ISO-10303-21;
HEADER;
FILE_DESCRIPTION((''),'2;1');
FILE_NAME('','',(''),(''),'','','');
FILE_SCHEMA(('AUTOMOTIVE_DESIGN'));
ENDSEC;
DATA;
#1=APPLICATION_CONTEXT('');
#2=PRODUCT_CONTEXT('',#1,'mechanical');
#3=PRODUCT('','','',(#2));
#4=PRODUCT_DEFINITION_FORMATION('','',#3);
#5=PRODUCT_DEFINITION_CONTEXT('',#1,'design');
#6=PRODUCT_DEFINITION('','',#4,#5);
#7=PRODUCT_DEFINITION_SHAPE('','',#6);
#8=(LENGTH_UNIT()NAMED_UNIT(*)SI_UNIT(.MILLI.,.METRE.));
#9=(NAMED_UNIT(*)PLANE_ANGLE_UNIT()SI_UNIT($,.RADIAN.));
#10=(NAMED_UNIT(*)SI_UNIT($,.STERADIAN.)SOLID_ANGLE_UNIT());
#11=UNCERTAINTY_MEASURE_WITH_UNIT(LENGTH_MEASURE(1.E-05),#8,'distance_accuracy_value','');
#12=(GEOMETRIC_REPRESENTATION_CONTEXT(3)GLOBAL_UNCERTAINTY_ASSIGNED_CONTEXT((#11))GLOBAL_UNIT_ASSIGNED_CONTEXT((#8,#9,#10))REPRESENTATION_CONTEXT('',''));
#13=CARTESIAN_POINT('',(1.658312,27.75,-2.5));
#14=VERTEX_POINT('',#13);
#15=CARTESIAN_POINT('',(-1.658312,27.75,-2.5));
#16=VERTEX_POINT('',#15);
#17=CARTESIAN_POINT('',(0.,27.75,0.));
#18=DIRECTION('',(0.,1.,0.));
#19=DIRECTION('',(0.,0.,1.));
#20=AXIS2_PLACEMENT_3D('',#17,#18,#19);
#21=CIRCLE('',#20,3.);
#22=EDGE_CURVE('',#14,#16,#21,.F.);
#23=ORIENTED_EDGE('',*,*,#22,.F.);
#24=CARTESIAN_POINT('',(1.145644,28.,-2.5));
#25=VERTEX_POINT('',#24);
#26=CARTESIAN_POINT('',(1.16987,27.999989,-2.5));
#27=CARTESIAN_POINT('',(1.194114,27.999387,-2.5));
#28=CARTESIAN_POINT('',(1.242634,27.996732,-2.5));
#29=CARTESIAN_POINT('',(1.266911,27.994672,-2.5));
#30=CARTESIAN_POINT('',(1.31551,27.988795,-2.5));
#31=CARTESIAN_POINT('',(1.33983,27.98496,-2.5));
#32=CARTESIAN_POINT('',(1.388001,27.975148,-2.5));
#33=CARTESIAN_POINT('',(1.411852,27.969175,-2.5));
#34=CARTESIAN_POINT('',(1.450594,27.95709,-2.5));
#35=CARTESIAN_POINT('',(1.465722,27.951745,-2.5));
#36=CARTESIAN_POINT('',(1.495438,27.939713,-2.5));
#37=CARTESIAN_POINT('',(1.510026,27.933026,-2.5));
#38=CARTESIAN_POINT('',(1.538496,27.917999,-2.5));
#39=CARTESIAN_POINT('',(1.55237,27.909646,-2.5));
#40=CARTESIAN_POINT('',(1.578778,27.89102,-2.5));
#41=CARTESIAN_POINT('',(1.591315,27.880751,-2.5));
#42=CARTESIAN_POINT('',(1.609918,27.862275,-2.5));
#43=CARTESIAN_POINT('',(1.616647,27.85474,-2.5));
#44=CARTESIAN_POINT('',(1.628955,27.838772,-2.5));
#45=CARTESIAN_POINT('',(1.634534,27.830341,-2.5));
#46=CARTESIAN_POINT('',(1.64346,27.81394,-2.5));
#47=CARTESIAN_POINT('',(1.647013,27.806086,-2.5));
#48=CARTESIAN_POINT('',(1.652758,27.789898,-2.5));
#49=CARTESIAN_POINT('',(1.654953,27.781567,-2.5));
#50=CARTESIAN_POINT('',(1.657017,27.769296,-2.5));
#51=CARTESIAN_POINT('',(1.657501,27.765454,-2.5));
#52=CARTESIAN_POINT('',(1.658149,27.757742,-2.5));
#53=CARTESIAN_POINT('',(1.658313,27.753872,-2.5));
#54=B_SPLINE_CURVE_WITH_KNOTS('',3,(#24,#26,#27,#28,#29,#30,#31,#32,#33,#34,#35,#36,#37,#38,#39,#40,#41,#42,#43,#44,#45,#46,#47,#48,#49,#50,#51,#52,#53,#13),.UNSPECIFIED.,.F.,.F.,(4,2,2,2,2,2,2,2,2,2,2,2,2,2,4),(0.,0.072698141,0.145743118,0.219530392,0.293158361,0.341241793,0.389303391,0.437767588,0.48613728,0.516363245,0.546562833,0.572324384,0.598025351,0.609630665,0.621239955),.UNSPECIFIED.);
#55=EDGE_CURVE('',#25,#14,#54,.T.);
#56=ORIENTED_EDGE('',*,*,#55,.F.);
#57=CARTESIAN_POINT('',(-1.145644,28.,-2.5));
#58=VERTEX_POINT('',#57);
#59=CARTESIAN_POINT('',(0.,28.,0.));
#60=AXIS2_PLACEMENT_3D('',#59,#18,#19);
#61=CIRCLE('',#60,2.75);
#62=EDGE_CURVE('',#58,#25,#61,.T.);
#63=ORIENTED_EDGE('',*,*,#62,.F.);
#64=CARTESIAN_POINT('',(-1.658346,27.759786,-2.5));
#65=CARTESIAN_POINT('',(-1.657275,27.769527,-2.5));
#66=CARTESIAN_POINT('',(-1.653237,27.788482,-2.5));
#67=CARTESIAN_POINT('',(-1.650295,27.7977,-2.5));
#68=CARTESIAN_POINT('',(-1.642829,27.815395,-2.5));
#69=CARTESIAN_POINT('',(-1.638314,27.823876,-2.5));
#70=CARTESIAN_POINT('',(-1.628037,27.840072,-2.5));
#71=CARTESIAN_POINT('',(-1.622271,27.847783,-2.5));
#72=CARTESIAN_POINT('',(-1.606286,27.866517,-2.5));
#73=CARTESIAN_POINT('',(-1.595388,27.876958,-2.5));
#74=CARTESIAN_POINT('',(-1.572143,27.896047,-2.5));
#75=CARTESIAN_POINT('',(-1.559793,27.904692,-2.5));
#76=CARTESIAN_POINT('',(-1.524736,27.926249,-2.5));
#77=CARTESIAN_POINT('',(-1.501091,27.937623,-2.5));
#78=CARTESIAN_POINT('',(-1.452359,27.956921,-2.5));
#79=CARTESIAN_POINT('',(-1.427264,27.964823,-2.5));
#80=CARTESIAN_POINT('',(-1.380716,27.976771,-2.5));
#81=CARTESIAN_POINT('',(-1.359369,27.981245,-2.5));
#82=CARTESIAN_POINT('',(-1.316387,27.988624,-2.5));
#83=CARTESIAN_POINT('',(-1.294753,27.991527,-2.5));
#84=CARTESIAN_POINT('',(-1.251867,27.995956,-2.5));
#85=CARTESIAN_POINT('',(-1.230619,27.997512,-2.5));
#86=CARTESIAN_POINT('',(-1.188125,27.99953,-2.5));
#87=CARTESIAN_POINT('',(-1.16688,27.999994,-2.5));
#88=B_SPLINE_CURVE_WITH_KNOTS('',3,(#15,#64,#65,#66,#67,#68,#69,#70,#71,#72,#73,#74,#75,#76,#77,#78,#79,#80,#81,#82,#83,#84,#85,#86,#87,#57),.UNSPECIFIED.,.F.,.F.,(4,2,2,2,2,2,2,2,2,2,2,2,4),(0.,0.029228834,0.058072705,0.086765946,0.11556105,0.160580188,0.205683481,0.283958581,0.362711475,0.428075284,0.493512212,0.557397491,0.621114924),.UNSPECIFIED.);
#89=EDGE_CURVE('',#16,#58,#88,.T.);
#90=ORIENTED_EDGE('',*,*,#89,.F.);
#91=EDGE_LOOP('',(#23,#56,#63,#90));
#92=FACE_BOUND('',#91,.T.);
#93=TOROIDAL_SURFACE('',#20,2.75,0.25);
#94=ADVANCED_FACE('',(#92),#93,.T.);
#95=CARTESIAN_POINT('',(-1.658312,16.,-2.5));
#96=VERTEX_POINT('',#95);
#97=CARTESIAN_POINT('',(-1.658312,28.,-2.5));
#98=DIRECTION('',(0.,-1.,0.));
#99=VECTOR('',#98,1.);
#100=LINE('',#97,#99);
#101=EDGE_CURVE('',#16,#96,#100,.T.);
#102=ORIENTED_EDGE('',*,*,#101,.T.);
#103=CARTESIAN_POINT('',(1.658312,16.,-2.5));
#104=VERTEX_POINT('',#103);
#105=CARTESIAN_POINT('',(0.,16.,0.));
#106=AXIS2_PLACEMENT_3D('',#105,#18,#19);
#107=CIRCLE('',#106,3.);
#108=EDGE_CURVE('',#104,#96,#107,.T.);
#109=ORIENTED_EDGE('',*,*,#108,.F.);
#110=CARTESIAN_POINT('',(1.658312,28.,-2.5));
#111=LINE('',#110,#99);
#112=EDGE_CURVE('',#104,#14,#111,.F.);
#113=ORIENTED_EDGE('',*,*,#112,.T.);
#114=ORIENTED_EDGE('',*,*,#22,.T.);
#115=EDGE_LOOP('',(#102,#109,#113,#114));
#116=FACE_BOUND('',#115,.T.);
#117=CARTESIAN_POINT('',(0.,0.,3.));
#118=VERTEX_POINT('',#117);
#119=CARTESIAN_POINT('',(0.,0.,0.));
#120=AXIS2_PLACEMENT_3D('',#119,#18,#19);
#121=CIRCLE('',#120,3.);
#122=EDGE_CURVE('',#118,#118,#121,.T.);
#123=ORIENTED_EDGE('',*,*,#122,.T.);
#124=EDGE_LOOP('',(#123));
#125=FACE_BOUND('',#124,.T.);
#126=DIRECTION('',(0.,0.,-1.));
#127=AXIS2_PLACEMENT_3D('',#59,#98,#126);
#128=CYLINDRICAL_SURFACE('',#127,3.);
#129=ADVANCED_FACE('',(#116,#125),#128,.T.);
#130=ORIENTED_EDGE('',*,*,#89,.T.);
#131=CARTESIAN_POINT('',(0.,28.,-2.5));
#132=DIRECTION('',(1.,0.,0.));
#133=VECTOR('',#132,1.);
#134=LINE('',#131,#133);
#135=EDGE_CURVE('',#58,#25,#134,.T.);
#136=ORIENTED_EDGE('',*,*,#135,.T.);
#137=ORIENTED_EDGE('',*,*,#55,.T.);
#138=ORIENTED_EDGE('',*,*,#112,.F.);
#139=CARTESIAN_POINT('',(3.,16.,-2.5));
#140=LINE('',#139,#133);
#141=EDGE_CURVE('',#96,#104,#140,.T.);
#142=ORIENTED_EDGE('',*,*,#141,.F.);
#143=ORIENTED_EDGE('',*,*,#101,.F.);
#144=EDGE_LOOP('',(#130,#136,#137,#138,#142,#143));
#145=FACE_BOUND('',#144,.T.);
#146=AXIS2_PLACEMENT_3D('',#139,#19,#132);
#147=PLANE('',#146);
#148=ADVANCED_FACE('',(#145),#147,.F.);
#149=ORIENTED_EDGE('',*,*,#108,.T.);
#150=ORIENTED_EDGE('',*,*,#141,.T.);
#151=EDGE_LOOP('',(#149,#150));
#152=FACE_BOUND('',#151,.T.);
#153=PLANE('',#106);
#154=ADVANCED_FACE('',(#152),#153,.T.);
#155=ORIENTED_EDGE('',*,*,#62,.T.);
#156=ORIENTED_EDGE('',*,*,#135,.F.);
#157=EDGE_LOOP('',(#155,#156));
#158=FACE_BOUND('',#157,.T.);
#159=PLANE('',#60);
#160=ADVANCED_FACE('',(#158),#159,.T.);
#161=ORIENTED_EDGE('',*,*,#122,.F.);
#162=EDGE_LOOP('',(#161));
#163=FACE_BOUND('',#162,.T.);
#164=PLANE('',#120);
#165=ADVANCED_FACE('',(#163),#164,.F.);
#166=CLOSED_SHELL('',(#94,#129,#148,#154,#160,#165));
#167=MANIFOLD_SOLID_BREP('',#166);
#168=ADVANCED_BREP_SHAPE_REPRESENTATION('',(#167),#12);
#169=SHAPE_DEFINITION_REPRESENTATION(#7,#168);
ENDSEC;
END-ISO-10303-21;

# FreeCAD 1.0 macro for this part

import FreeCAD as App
import Part
import Sketcher
Q = App.Units.Quantity


def edges_at(feature, points):
    """Names of the edges that pass closest to the given points."""
    edges = feature.Shape.Edges
    near = lambda p: min(range(len(edges)), key=lambda i: edges[i].distToShape(Part.Vertex(*p))[0])
    return sorted({f"Edge{near(p) + 1}" for p in points})

doc = App.newDocument("Part")
body = doc.addObject("PartDesign::Body", "Body")

sketch1 = doc.addObject("Sketcher::SketchObject", "Sketch")
body.addObject(sketch1)
sketch1.AttachmentSupport = (doc.XZ_Plane, [""])
sketch1.MapMode = "FlatFace"
sketch1.addGeometry(Part.Circle(App.Vector(0, 0, 0), App.Vector(0, 0, 1), 3), False)
sketch1.addConstraint([
    Sketcher.Constraint("Coincident", 0, 3, -1, 1),
    Sketcher.Constraint("Diameter", 0, Q("6 mm")),
])
pad1 = doc.addObject("PartDesign::Pad", "Pad")
body.addObject(pad1)
pad1.Profile = sketch1
pad1.Length = 28
pad1.Reversed = True

sketch2 = doc.addObject("Sketcher::SketchObject", "Sketch001")
body.addObject(sketch2)
sketch2.AttachmentSupport = (doc.XZ_Plane, [""])
sketch2.MapMode = "FlatFace"
sketch2.AttachmentOffset = App.Placement(App.Vector(0, 0, -28), App.Rotation())
sketch2.addGeometry([
    Part.LineSegment(App.Vector(-3, -3.5, 0), App.Vector(-3, -2.5, 0)),
    Part.LineSegment(App.Vector(-3, -2.5, 0), App.Vector(3, -2.5, 0)),
    Part.LineSegment(App.Vector(3, -2.5, 0), App.Vector(3, -3.5, 0)),
    Part.LineSegment(App.Vector(3, -3.5, 0), App.Vector(-3, -3.5, 0)),
], False)
sketch2.addConstraint([
    Sketcher.Constraint("Coincident", 0, 2, 1, 1),
    Sketcher.Constraint("Coincident", 1, 2, 2, 1),
    Sketcher.Constraint("Coincident", 2, 2, 3, 1),
    Sketcher.Constraint("Coincident", 3, 2, 0, 1),
    Sketcher.Constraint("Vertical", 0),
    Sketcher.Constraint("Horizontal", 1),
    Sketcher.Constraint("Vertical", 2),
    Sketcher.Constraint("Horizontal", 3),
    Sketcher.Constraint("DistanceX", 1, 1, 1, 2, Q("6 mm")),
    Sketcher.Constraint("DistanceY", 0, 1, 0, 2, Q("1 mm")),
    Sketcher.Constraint("DistanceX", 0, 2, -1, 1, Q("3 mm")),
    Sketcher.Constraint("DistanceY", 0, 2, -1, 1, Q("2.5 mm")),
])
pocket1 = doc.addObject("PartDesign::Pocket", "Pocket")
body.addObject(pocket1)
pocket1.Profile = sketch2
pocket1.Length = 12
pocket1.Reversed = True
doc.recompute()

fillet = doc.addObject("PartDesign::Fillet", "Fillet")
body.addObject(fillet)
fillet.Base = (pocket1, edges_at(pocket1, [(-2.872, 28, 0.866)]))
fillet.Radius = 0.25

doc.recompute()
